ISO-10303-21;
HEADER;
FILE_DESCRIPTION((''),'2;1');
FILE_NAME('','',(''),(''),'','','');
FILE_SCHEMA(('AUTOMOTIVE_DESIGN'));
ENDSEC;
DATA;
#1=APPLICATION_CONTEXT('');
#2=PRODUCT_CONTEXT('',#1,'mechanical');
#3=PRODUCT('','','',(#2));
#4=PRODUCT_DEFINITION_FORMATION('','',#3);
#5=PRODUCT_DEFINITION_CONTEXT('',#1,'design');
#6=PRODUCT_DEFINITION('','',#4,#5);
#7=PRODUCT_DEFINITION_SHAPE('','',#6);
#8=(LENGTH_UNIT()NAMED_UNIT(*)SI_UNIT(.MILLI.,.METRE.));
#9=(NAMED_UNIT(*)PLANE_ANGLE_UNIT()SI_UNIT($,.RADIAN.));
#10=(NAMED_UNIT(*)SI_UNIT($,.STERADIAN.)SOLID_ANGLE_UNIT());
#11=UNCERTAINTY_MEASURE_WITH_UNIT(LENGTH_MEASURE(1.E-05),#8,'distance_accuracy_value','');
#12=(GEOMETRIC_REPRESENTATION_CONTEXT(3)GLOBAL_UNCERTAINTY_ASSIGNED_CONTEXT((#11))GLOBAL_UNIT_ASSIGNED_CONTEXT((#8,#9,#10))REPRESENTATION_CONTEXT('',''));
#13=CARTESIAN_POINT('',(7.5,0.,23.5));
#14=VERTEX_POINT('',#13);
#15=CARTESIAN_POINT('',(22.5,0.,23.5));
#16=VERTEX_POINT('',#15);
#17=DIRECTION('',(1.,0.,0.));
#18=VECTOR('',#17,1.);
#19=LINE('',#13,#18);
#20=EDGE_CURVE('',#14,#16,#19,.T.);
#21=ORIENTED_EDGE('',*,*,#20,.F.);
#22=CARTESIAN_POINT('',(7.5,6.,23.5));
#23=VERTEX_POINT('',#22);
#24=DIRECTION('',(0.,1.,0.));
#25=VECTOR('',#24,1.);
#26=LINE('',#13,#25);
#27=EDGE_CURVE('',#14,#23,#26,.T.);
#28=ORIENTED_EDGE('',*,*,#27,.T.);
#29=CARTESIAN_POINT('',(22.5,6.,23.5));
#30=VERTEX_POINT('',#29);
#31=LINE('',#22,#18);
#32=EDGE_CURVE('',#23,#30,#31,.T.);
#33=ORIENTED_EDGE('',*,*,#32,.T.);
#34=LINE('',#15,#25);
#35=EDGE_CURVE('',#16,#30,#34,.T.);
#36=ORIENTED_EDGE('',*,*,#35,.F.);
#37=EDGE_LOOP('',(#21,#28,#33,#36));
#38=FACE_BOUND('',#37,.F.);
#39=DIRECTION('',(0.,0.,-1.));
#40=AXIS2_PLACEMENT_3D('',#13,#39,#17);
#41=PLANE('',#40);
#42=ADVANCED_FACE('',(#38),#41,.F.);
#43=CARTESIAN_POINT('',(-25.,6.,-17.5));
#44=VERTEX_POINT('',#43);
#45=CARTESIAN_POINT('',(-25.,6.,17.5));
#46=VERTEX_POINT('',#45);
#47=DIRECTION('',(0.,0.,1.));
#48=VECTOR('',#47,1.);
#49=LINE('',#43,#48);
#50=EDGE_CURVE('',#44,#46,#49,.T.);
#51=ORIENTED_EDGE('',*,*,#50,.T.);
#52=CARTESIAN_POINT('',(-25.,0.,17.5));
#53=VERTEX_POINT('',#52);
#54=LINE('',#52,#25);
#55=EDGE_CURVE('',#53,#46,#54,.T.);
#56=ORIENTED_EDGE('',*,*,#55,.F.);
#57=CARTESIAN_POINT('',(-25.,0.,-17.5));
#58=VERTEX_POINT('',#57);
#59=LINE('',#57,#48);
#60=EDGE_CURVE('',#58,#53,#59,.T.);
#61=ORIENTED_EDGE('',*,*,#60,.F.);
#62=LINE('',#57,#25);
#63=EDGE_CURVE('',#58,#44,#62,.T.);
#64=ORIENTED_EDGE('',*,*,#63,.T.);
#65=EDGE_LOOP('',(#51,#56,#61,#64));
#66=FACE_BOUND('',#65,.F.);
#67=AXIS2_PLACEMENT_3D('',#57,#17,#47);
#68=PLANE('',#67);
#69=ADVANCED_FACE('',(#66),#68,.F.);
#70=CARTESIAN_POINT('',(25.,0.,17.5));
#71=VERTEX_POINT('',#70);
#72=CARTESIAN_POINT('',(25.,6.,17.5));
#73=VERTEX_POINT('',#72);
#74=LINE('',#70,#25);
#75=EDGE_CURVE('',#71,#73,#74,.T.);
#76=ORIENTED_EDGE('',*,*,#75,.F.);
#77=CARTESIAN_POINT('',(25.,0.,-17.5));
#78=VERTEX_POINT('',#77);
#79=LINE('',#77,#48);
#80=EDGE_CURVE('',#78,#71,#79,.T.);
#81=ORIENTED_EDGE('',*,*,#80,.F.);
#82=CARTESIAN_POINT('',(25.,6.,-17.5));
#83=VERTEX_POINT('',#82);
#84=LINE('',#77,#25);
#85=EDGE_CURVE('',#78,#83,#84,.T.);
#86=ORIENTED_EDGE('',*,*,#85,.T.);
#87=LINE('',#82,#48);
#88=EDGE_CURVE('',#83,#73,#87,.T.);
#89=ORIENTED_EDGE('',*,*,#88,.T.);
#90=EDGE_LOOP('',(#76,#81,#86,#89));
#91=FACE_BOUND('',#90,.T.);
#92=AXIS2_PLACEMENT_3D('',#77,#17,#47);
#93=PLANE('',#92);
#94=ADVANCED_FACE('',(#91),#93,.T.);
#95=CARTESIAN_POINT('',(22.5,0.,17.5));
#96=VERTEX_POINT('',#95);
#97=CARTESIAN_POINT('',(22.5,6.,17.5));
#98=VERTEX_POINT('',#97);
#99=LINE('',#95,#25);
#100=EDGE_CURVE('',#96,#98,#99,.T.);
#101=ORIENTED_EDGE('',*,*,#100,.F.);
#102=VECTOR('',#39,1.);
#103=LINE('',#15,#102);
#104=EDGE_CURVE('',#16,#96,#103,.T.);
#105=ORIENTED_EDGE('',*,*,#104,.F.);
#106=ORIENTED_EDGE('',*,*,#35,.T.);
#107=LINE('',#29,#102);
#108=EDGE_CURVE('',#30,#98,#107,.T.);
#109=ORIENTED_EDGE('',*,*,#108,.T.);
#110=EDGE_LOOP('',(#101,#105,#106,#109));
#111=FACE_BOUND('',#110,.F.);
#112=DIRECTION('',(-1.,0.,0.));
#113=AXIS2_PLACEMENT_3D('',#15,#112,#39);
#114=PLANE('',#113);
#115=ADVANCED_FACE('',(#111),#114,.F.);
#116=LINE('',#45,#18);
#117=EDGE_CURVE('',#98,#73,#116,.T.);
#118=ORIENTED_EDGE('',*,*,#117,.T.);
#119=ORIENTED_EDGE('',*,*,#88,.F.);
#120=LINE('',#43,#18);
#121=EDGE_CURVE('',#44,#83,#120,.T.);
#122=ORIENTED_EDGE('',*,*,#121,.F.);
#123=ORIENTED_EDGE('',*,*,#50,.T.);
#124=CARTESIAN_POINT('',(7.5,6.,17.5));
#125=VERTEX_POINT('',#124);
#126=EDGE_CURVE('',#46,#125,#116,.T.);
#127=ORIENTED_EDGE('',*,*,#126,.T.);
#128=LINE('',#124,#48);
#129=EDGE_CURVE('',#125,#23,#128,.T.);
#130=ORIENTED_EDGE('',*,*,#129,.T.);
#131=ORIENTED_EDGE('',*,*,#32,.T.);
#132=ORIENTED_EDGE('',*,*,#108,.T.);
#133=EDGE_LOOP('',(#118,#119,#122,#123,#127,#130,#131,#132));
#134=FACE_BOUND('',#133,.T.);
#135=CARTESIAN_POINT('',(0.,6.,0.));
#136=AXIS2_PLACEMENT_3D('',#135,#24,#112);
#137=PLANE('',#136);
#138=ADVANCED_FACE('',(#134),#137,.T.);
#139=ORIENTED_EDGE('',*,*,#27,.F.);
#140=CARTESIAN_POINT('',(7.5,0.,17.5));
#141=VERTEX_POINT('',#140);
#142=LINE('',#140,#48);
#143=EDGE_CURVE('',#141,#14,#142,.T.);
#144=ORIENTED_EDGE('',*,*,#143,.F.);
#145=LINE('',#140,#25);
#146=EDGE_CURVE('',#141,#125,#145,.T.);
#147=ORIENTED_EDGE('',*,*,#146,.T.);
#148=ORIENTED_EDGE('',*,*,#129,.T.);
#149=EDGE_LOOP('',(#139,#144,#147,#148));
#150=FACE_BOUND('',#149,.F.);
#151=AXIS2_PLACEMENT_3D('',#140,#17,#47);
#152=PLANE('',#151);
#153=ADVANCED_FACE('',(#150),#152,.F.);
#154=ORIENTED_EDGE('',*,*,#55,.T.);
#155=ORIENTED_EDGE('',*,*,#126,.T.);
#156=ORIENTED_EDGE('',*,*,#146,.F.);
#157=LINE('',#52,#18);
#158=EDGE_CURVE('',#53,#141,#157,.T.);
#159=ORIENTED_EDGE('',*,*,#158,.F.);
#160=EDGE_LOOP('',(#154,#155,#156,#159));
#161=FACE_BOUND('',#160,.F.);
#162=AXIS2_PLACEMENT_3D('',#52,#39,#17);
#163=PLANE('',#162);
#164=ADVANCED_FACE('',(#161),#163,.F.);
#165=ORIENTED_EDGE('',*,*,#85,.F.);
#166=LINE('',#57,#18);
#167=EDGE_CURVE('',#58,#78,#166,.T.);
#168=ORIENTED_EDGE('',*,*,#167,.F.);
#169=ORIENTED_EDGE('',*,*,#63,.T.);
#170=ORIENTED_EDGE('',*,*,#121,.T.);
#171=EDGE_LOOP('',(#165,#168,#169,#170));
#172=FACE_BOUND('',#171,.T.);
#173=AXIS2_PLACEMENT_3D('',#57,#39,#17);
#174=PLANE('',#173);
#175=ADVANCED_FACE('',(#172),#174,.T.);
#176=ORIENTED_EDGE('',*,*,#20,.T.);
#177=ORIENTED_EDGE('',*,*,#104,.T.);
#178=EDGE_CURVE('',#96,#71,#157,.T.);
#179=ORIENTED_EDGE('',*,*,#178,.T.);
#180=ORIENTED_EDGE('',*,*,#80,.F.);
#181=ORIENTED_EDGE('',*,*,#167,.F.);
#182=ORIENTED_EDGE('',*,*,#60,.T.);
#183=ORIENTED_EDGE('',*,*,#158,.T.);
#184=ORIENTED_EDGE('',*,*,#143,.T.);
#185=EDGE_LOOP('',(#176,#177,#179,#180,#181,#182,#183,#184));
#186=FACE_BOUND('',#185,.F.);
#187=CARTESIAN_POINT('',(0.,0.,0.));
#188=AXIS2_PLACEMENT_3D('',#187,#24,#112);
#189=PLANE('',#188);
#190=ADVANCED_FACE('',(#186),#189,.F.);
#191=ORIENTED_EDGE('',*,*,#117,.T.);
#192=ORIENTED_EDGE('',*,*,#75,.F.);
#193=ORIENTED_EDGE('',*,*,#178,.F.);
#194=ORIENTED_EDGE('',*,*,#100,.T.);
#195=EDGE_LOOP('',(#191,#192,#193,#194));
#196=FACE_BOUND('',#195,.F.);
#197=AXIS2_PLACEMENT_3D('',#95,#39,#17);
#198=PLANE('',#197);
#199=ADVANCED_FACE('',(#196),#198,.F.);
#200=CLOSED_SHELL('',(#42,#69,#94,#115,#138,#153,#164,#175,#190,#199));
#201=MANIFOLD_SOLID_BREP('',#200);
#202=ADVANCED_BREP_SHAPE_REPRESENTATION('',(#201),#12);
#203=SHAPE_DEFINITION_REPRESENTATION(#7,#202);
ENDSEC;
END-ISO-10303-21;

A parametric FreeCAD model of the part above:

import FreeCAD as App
import Part
import Sketcher

V = App.Vector


def add_polygon(sketch, points):
    """Adds a closed chain of lines whose ends are joined by coincident constraints."""
    first, n = sketch.GeometryCount, len(points)
    for a, b in zip(points, points[1:] + points[:1]):
        sketch.addGeometry(Part.LineSegment(App.Vector(*a, 0), App.Vector(*b, 0)), False)
    for i in range(n):
        sketch.addConstraint(Sketcher.Constraint("Coincident", first + i, 2, first + (i + 1) % n, 1))

doc = App.newDocument("Part")
body = doc.addObject("PartDesign::Body", "Body")

sketch1 = body.newObject("Sketcher::SketchObject", "Sketch")
sketch1.AttachmentSupport = (doc.getObject("XZ_Plane"), [""])
sketch1.MapMode = "FlatFace"
add_polygon(sketch1, [(25, -17.5), (-25, -17.5), (-25, 17.5), (7.5, 17.5), (7.5, 23.5), (22.5, 23.5), (22.5, 17.5), (25, 17.5)])
sketch1.addConstraint([
    Sketcher.Constraint("Horizontal", 0),
    Sketcher.Constraint("Vertical", 1),
    Sketcher.Constraint("Horizontal", 2),
    Sketcher.Constraint("Vertical", 3),
    Sketcher.Constraint("Horizontal", 4),
    Sketcher.Constraint("Vertical", 5),
    Sketcher.Constraint("Horizontal", 6),
    Sketcher.Constraint("Vertical", 7),
    Sketcher.Constraint("Symmetric", 0, 2, 6, 2, -1, 1),
    Sketcher.Constraint("Horizontal", 2, 2, 5, 2),
    Sketcher.Constraint("DistanceX", 0, 2, 0, 1, 50.0),
    Sketcher.Constraint("DistanceX", 4, 1, 4, 2, 15.0),
    Sketcher.Constraint("DistanceY", 1, 1, 1, 2, 35.0),
    Sketcher.Constraint("DistanceY", 3, 1, 3, 2, 6.0),
    Sketcher.Constraint("DistanceX", 6, 1, 6, 2, 2.5),
])
pad1 = body.newObject("PartDesign::Pad", "Pad")
pad1.Profile = sketch1
pad1.Length = 6
pad1.Reversed = True

doc.recompute()
